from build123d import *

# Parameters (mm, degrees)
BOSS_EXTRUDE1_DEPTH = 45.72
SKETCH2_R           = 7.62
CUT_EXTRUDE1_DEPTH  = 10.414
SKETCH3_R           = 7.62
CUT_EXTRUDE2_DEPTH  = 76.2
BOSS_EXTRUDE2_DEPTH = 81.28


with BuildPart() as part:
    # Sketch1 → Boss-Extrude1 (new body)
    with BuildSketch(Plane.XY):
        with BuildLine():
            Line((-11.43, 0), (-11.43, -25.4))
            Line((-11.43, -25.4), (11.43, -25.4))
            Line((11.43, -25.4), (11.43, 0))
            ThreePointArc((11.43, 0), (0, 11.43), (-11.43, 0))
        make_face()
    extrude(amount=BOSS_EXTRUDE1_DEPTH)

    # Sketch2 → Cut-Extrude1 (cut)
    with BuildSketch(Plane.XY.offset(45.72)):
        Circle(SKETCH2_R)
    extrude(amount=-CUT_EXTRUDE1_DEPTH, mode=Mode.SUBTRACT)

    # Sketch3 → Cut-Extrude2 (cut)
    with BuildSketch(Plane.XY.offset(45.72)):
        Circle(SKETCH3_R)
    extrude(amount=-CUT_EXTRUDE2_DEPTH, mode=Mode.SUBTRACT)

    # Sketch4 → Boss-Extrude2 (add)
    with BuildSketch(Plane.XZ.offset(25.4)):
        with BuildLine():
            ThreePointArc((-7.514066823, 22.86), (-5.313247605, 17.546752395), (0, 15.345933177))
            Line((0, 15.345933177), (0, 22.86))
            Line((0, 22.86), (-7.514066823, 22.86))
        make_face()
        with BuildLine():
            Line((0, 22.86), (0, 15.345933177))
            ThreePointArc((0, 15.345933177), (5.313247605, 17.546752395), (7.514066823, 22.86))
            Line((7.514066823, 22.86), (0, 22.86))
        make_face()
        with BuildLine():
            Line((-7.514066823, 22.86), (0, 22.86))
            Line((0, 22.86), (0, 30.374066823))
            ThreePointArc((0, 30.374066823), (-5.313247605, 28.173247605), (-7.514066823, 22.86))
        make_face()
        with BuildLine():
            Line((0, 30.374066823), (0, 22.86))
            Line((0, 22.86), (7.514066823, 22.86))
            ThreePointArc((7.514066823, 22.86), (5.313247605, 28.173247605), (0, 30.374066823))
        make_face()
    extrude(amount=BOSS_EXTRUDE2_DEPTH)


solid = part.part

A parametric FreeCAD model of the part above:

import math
import FreeCAD as App
import Part
import Sketcher
from FreeCAD import Vector
Q = App.Units.Quantity

doc = App.newDocument("Part")
body = doc.addObject("PartDesign::Body", "Body")

sketch1 = doc.addObject("Sketcher::SketchObject", "Sketch")
body.addObject(sketch1)
sketch1.AttachmentSupport = (doc.XY_Plane, [""])
sketch1.MapMode = "FlatFace"
sketch1.addGeometry(Part.LineSegment(Vector(-11, 0, 0), Vector(-11, -25, 0)), False)
sketch1.addGeometry(Part.LineSegment(Vector(-11, -25, 0), Vector(11, -25, 0)), False)
sketch1.addGeometry(Part.LineSegment(Vector(11, -25, 0), Vector(11, 0, 0)), False)
sketch1.addGeometry(Part.ArcOfCircle(Part.Circle(Vector(0, 0, 0), Vector(0, 0, 1), 11), math.radians(0), math.radians(180)), False)
sketch1.addConstraint(Sketcher.Constraint("Coincident", 0, 2, 1, 1))
sketch1.addConstraint(Sketcher.Constraint("Coincident", 1, 2, 2, 1))
sketch1.addConstraint(Sketcher.Constraint("Tangent", 2, 2, 3, 1))
sketch1.addConstraint(Sketcher.Constraint("Tangent", 3, 2, 0, 1))
sketch1.addConstraint(Sketcher.Constraint("Vertical", 0))
sketch1.addConstraint(Sketcher.Constraint("Horizontal", 1))
sketch1.addConstraint(Sketcher.Constraint("Vertical", 2))
sketch1.addConstraint(Sketcher.Constraint("Coincident", 3, 3, -1, 1))
sketch1.addConstraint(Sketcher.Constraint("DistanceY", 0, 2, 0, 1, Q("1 in")))
sketch1.addConstraint(Sketcher.Constraint("Radius", 3, Q("0.45 in")))
pad1 = doc.addObject("PartDesign::Pad", "Pad")
body.addObject(pad1)
pad1.Profile = sketch1
pad1.Length = Q("1.8 in")

sketch2 = doc.addObject("Sketcher::SketchObject", "Sketch001")
body.addObject(sketch2)
sketch2.AttachmentSupport = (doc.XY_Plane, [""])
sketch2.MapMode = "FlatFace"
sketch2.AttachmentOffset = App.Placement(Vector(0, 0, 1.8 * 25.4), App.Rotation())
sketch2.addGeometry(Part.Circle(Vector(0, 0, 0), Vector(0, 0, 1), 8), False)
sketch2.addConstraint(Sketcher.Constraint("Coincident", 0, 3, -1, 1))
sketch2.addConstraint(Sketcher.Constraint("Diameter", 0, Q("0.6 in")))
pocket1 = doc.addObject("PartDesign::Pocket", "Pocket")
body.addObject(pocket1)
pocket1.Profile = sketch2
pocket1.Length = Q("0.41 in")

sketch3 = doc.addObject("Sketcher::SketchObject", "Sketch002")
body.addObject(sketch3)
sketch3.AttachmentSupport = (doc.XY_Plane, [""])
sketch3.MapMode = "FlatFace"
sketch3.AttachmentOffset = App.Placement(Vector(0, 0, 1.8 * 25.4), App.Rotation())
sketch3.addGeometry(Part.Circle(Vector(0, 0, 0), Vector(0, 0, 1), 8), False)
sketch3.addConstraint(Sketcher.Constraint("Coincident", 0, 3, -1, 1))
sketch3.addConstraint(Sketcher.Constraint("Diameter", 0, Q("0.6 in")))
pocket2 = doc.addObject("PartDesign::Pocket", "Pocket001")
body.addObject(pocket2)
pocket2.Profile = sketch3
pocket2.Length = Q("3 in")

sketch4 = doc.addObject("Sketcher::SketchObject", "Sketch003")
body.addObject(sketch4)
sketch4.AttachmentSupport = (doc.XZ_Plane, [""])
sketch4.MapMode = "FlatFace"
sketch4.AttachmentOffset = App.Placement(Vector(0, 0, 1 * 25.4), App.Rotation())
sketch4.addGeometry(Part.ArcOfCircle(Part.Circle(Vector(0, 23, 0), Vector(0, 0, 1), 8), math.radians(-90), math.radians(0)), False)
sketch4.addGeometry(Part.ArcOfCircle(Part.Circle(Vector(0, 23, 0), Vector(0, 0, 1), 8), math.radians(0), math.radians(90)), False)
sketch4.addGeometry(Part.ArcOfCircle(Part.Circle(Vector(0, 23, 0), Vector(0, 0, 1), 8), math.radians(90), math.radians(180)), False)
sketch4.addGeometry(Part.ArcOfCircle(Part.Circle(Vector(0, 23, 0), Vector(0, 0, 1), 8), math.radians(180), math.radians(270)), False)
sketch4.addConstraint(Sketcher.Constraint("Tangent", 0, 2, 1, 1))
sketch4.addConstraint(Sketcher.Constraint("Tangent", 1, 2, 2, 1))
sketch4.addConstraint(Sketcher.Constraint("Tangent", 2, 2, 3, 1))
sketch4.addConstraint(Sketcher.Constraint("Tangent", 3, 2, 0, 1))
sketch4.addConstraint(Sketcher.Constraint("Equal", 0, 1))
sketch4.addConstraint(Sketcher.Constraint("Symmetric", 0, 2, 2, 2, -2))
sketch4.addConstraint(Sketcher.Constraint("PointOnObject", 1, 2, -2))
sketch4.addConstraint(Sketcher.Constraint("PointOnObject", 3, 2, -2))
sketch4.addConstraint(Sketcher.Constraint("Horizontal", 3, 3, 0, 2))
sketch4.addConstraint(Sketcher.Constraint("DistanceY", -1, 1, 0, 3, Q("0.9 in")))
sketch4.addConstraint(Sketcher.Constraint("Radius", 0, 7.514067))
pad2 = doc.addObject("PartDesign::Pad", "Pad001")
body.addObject(pad2)
pad2.Profile = sketch4
pad2.Length = Q("3.2 in")

doc.recompute()
